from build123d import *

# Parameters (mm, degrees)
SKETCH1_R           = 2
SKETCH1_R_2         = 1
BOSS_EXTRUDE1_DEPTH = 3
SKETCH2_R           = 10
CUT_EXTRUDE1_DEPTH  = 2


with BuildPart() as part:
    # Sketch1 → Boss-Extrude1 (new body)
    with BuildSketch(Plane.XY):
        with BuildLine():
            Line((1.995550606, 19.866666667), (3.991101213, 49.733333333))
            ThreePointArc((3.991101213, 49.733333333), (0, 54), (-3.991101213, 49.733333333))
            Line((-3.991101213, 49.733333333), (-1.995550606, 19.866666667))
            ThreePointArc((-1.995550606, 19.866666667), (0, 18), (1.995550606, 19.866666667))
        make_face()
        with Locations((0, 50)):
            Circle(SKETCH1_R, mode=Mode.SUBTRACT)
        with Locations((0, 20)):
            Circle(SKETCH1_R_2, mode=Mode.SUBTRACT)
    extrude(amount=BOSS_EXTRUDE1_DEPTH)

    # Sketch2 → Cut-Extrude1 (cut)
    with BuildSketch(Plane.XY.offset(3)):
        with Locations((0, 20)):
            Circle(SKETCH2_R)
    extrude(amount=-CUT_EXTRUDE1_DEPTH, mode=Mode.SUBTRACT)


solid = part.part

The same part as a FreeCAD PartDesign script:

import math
import FreeCAD as App
import Part
import Sketcher

V = App.Vector
Q = App.Units.Quantity

doc = App.newDocument("Part")
body = doc.addObject("PartDesign::Body", "Body")

sketch1 = body.newObject("Sketcher::SketchObject", "Sketch")
sketch1.AttachmentSupport = (doc.getObject("XY_Plane"), [""])
sketch1.MapMode = "FlatFace"
sketch1.addGeometry([
    Part.LineSegment(V(1.995551, 19.866667, 0), V(3.991101, 49.733333, 0)),
    Part.ArcOfCircle(Part.Circle(V(0, 50, 0), V(0, 0, 1), 4), math.radians(-3.822554), math.radians(183.822554)),
    Part.LineSegment(V(-3.991101, 49.733333, 0), V(-1.995551, 19.866667, 0)),
    Part.ArcOfCircle(Part.Circle(V(0, 20, 0), V(0, 0, 1), 2), math.radians(-176.177446), math.radians(-3.822554)),
    Part.Circle(V(0, 20, 0), V(0, 0, 1), 1),
    Part.Circle(V(0, 50, 0), V(0, 0, 1), 2),
], False)
sketch1.addConstraint([
    Sketcher.Constraint("Tangent", 0, 2, 1, 1),
    Sketcher.Constraint("Tangent", 1, 2, 2, 1),
    Sketcher.Constraint("Tangent", 2, 2, 3, 1),
    Sketcher.Constraint("Tangent", 3, 2, 0, 1),
    Sketcher.Constraint("Coincident", 4, 3, 3, 3),
    Sketcher.Constraint("Coincident", 5, 3, 1, 3),
    Sketcher.Constraint("Equal", 3, 5),
    Sketcher.Constraint("Symmetric", 0, 2, 1, 2, -2),
    Sketcher.Constraint("Diameter", 4, Q("2 mm")),
    Sketcher.Constraint("Diameter", 5, Q("4 mm")),
    Sketcher.Constraint("Radius", 1, Q("4 mm")),
    Sketcher.Constraint("DistanceY", -1, 1, 1, 3, Q("50 mm")),
    Sketcher.Constraint("DistanceY", -1, 1, 3, 3, Q("20 mm")),
])
pad1 = body.newObject("PartDesign::Pad", "Pad")
pad1.Profile = sketch1
pad1.Length = 3

sketch2 = body.newObject("Sketcher::SketchObject", "Sketch001")
sketch2.AttachmentSupport = (doc.getObject("XY_Plane"), [""])
sketch2.MapMode = "FlatFace"
sketch2.AttachmentOffset = App.Placement(V(0, 0, 3), App.Rotation())
sketch2.addGeometry(Part.Circle(V(0, 20, 0), V(0, 0, 1), 10), False)
sketch2.addConstraint([
    Sketcher.Constraint("PointOnObject", 0, 3, -2),
    Sketcher.Constraint("Diameter", 0, Q("20 mm")),
    Sketcher.Constraint("DistanceY", -1, 1, 0, 3, Q("20 mm")),
])
pocket1 = body.newObject("PartDesign::Pocket", "Pocket")
pocket1.Profile = sketch2
pocket1.Length = 2

doc.recompute()
